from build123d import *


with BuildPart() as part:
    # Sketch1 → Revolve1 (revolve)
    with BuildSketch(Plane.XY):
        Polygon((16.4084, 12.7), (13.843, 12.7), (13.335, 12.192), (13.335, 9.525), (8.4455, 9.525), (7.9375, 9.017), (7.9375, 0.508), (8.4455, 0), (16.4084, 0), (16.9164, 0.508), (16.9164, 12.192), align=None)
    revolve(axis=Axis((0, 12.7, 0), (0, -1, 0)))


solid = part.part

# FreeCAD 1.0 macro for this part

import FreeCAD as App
import Part
import Sketcher
from FreeCAD import Vector
Q = App.Units.Quantity

doc = App.newDocument("Part")
body = doc.addObject("PartDesign::Body", "Body")

# Sketch on XY plane
sketch1 = body.newObject("Sketcher::SketchObject", "Sketch")
sketch1.AttachmentSupport = (doc.getObject("XY_Plane"), [""])
sketch1.MapMode = "FlatFace"
sketch1.addGeometry([
    Part.LineSegment(Vector(16.4, 12.7, 0), Vector(13.8, 12.7, 0)),  # 0
    Part.LineSegment(Vector(13.8, 12.7, 0), Vector(13.3, 12.2, 0)),  # 1
    Part.LineSegment(Vector(13.3, 12.2, 0), Vector(13.3, 9.5, 0)),  # 2
    Part.LineSegment(Vector(13.3, 9.5, 0), Vector(8.4, 9.5, 0)),  # 3
    Part.LineSegment(Vector(8.4, 9.5, 0), Vector(7.9, 9, 0)),  # 4
    Part.LineSegment(Vector(7.9, 9, 0), Vector(7.9, 0.5, 0)),  # 5
    Part.LineSegment(Vector(7.9, 0.5, 0), Vector(8.4, 0, 0)),  # 6
    Part.LineSegment(Vector(8.4, 0, 0), Vector(16.4, 0, 0)),  # 7
    Part.LineSegment(Vector(16.4, 0, 0), Vector(16.9, 0.5, 0)),  # 8
    Part.LineSegment(Vector(16.9, 0.5, 0), Vector(16.9, 12.2, 0)),  # 9
    Part.LineSegment(Vector(16.9, 12.2, 0), Vector(16.4, 12.7, 0)),  # 10
], False)
sketch1.addConstraint([
    Sketcher.Constraint("Coincident", 0, 2, 1, 1),
    Sketcher.Constraint("Coincident", 1, 2, 2, 1),
    Sketcher.Constraint("Coincident", 2, 2, 3, 1),
    Sketcher.Constraint("Coincident", 3, 2, 4, 1),
    Sketcher.Constraint("Coincident", 4, 2, 5, 1),
    Sketcher.Constraint("Coincident", 5, 2, 6, 1),
    Sketcher.Constraint("Coincident", 6, 2, 7, 1),
    Sketcher.Constraint("Coincident", 7, 2, 8, 1),
    Sketcher.Constraint("Coincident", 8, 2, 9, 1),
    Sketcher.Constraint("Coincident", 9, 2, 10, 1),
    Sketcher.Constraint("Coincident", 10, 2, 0, 1),
    Sketcher.Constraint("Horizontal", 0),
    Sketcher.Constraint("Vertical", 2),
    Sketcher.Constraint("Horizontal", 3),
    Sketcher.Constraint("Vertical", 5),
    Sketcher.Constraint("Horizontal", 7),
    Sketcher.Constraint("Vertical", 9),
    Sketcher.Constraint("PointOnObject", 6, 2, -1),
    Sketcher.Constraint("Parallel", 1, 4),
    Sketcher.Constraint("Perpendicular", 4, 6),
    Sketcher.Constraint("Perpendicular", 6, 8),
    Sketcher.Constraint("Perpendicular", 8, 10),
    Sketcher.Constraint("Horizontal", 5, 2, 8, 2),
    Sketcher.Constraint("Horizontal", 1, 2, 9, 2),
    Sketcher.Constraint("Vertical", 3, 2, 6, 2),
    Sketcher.Constraint("Vertical", 7, 2, 10, 2),
    Sketcher.Constraint("Equal", 1, 4),
    Sketcher.Constraint("DistanceY", 9, 1, 9, 2, Q("0.46 in")),
    Sketcher.Constraint("DistanceY", -1, 1, 0, 2, Q("0.5 in")),
    Sketcher.Constraint("DistanceX", 0, 2, 0, 1, Q("0.101 in")),
    Sketcher.Constraint("DistanceY", 2, 2, 2, 1, Q("0.105 in")),
    Sketcher.Constraint("DistanceX", 3, 2, 3, 1, Q("0.1925 in")),
    Sketcher.Constraint("DistanceX", -1, 1, 0, 2, Q("0.545 in")),
])
revolution = body.newObject("PartDesign::Revolution", "Revolution")
revolution.Profile = sketch1
revolution.ReferenceAxis = (sketch1, ["V_Axis"])
revolution.Angle = 360

doc.recompute()
